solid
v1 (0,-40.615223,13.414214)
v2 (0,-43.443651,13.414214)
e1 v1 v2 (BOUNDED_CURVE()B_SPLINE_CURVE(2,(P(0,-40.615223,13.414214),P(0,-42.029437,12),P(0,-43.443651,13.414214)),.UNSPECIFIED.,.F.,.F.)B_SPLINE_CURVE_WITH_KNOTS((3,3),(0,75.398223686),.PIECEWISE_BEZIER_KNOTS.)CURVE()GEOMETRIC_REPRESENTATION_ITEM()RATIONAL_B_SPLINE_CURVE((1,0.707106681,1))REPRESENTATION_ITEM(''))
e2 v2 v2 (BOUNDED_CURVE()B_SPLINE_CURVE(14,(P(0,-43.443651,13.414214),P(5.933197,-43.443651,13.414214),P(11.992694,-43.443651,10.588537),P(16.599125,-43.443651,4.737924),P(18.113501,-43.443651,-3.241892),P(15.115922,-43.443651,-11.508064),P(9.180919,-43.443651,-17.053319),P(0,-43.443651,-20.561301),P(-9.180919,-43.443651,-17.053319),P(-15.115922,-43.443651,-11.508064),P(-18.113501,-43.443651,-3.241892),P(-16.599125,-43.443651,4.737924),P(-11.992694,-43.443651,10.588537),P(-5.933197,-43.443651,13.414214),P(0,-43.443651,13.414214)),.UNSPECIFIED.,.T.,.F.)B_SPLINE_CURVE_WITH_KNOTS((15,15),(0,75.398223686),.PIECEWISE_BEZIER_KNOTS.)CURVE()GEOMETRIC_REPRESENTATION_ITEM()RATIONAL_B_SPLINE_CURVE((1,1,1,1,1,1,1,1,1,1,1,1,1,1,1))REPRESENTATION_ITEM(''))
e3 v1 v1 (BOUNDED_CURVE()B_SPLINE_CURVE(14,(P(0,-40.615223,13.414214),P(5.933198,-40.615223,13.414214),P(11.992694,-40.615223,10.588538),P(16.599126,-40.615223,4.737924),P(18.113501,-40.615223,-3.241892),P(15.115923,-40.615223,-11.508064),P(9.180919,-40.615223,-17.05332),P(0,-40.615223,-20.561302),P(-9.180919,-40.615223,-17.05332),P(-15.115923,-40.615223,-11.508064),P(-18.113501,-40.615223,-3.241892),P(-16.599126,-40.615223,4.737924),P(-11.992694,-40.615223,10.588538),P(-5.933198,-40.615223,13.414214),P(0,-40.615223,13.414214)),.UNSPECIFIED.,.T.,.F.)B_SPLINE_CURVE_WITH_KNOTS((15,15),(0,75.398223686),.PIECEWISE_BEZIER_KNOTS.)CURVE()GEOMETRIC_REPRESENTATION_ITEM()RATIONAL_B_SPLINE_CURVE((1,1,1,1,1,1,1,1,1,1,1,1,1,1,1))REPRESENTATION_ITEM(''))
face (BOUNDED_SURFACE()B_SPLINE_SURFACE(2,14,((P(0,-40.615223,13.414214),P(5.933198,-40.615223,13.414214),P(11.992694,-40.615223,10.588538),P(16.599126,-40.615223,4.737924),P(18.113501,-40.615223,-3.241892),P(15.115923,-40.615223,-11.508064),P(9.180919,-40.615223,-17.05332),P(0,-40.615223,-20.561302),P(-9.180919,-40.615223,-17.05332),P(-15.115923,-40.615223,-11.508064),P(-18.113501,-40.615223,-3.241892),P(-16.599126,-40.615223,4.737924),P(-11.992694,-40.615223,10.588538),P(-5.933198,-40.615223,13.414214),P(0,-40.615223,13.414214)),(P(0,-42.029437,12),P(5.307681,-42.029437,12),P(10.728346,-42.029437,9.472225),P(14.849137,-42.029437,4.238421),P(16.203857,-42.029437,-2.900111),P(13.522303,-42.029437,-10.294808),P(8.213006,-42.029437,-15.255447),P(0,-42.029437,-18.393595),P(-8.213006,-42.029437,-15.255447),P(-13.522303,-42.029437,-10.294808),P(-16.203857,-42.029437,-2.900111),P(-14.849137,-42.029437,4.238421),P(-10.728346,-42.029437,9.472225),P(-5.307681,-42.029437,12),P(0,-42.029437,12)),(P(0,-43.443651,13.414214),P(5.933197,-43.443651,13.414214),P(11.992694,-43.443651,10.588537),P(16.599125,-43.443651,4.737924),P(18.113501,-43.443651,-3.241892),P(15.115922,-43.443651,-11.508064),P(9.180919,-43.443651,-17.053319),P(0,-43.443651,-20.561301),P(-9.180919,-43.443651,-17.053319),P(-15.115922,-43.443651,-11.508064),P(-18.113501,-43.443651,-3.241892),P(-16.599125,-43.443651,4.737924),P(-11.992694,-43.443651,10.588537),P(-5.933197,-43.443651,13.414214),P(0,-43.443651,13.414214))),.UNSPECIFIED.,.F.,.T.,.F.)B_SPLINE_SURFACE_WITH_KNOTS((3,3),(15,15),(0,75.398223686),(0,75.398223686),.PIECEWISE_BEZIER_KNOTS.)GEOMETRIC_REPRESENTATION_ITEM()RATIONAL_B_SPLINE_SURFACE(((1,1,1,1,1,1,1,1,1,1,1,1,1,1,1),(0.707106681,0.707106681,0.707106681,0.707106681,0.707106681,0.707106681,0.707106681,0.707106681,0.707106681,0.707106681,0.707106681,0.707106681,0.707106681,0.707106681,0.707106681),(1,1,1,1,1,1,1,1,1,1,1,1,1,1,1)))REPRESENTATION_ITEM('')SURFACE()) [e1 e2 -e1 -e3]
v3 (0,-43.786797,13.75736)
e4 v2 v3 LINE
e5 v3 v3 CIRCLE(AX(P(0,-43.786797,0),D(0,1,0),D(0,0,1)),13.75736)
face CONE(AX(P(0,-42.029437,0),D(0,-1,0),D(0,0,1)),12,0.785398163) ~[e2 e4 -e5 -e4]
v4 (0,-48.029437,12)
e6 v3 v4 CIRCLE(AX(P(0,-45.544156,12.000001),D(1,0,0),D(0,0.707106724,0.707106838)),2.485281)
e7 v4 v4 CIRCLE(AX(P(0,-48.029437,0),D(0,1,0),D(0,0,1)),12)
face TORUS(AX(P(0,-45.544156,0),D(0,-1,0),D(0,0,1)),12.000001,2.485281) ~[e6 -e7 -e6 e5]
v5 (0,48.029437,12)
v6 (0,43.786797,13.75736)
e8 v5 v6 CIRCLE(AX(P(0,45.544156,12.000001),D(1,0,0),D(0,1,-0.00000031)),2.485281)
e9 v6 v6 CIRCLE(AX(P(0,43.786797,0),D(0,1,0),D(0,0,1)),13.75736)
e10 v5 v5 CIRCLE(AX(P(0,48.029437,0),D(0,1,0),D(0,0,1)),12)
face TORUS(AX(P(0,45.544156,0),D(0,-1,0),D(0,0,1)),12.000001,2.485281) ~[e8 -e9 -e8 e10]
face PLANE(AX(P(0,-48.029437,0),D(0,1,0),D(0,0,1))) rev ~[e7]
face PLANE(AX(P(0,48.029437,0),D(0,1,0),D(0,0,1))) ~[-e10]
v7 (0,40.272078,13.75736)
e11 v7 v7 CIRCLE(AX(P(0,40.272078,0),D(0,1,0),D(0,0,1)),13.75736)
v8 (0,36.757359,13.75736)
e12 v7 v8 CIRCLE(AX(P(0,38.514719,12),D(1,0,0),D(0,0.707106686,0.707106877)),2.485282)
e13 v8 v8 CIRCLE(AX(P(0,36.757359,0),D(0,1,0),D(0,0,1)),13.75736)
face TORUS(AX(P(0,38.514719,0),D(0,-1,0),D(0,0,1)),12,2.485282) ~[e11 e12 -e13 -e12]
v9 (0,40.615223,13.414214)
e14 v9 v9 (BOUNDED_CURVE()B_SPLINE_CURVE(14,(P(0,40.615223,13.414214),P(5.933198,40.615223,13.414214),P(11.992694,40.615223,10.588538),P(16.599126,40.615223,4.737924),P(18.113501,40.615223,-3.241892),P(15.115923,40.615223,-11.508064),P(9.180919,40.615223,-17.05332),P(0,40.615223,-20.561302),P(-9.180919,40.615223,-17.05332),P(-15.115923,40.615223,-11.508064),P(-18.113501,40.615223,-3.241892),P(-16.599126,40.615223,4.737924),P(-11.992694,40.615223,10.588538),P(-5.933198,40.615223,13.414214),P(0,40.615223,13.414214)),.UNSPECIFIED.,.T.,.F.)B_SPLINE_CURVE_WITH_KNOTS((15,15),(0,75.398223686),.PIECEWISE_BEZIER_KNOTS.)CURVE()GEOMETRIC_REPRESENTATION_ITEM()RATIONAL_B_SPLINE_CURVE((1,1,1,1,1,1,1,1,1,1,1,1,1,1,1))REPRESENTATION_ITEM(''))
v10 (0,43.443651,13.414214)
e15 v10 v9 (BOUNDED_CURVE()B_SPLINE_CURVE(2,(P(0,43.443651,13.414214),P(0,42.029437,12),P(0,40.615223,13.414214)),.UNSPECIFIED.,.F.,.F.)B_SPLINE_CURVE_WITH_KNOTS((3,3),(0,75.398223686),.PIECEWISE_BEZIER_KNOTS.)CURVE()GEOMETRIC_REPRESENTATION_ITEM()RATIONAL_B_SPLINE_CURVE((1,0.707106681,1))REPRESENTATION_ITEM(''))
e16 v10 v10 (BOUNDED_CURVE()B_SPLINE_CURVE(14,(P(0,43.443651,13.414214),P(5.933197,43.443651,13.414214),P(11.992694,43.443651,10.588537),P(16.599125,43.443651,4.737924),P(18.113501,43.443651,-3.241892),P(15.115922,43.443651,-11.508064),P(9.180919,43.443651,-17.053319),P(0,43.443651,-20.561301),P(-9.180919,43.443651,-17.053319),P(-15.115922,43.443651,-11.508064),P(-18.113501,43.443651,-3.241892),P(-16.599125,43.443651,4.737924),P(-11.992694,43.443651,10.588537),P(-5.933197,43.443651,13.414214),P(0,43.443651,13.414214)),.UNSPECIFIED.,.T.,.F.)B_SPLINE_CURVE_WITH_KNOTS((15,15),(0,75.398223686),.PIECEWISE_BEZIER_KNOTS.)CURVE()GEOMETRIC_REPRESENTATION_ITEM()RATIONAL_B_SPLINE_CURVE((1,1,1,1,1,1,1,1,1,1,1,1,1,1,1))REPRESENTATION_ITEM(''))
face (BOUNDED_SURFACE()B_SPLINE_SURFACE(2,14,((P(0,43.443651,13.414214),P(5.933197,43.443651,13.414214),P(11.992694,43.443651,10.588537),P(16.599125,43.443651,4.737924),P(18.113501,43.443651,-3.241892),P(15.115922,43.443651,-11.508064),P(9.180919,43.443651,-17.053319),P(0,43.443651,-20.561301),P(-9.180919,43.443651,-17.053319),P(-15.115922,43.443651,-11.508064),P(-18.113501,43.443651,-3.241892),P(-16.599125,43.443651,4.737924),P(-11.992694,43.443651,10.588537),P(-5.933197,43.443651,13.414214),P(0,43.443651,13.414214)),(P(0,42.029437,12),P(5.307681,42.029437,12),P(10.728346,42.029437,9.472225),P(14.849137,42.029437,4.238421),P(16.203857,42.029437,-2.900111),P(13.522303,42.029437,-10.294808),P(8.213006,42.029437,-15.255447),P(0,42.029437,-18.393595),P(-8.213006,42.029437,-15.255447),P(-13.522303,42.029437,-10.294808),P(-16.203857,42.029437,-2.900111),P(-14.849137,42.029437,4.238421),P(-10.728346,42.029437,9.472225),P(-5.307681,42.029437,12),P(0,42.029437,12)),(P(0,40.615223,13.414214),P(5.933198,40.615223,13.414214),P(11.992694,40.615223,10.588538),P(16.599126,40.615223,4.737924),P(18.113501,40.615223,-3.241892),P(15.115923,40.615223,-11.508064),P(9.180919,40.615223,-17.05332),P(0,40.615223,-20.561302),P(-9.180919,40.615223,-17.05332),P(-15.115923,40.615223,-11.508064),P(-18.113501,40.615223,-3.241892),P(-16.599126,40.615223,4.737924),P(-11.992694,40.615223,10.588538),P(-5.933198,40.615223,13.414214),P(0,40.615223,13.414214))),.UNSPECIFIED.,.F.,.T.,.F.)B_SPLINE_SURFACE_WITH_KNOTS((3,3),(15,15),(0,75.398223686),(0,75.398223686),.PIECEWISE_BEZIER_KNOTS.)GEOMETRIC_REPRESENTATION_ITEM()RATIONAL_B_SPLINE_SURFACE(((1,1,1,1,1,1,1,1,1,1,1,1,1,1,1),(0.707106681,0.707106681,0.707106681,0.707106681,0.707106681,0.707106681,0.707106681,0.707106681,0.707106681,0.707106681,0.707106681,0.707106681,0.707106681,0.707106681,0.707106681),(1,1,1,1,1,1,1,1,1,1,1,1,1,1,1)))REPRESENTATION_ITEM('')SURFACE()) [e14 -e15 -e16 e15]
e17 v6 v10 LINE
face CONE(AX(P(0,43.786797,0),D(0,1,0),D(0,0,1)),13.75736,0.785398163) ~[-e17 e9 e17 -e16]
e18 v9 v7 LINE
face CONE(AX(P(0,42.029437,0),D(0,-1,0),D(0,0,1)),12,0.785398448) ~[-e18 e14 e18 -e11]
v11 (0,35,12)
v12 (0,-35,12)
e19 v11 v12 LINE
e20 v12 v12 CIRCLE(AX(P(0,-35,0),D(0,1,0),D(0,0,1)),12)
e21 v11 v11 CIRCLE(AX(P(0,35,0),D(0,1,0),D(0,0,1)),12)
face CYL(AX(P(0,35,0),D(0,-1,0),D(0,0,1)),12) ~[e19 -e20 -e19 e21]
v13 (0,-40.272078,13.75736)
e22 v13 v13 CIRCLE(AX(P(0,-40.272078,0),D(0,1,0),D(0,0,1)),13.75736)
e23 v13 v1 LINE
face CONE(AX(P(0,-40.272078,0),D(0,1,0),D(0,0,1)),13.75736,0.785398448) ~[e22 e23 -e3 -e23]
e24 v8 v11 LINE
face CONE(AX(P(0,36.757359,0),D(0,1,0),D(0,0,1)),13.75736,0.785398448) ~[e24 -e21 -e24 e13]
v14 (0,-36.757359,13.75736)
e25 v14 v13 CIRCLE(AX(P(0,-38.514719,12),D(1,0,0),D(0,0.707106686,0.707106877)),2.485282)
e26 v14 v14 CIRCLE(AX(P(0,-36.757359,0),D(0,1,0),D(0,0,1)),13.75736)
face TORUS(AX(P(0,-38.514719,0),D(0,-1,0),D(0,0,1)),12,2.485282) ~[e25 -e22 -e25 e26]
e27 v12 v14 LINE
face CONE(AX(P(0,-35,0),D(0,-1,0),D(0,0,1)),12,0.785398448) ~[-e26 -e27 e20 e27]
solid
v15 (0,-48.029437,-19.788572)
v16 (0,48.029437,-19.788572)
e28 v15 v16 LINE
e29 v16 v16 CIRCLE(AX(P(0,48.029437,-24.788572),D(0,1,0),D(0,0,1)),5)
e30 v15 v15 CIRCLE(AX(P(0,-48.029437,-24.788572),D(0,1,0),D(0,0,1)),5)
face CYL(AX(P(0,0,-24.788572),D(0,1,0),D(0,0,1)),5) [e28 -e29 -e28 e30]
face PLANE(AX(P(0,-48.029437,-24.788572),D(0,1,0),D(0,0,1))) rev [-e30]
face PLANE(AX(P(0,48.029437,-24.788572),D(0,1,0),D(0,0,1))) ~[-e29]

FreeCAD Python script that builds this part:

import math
import FreeCAD as App
import Part
import Sketcher
from FreeCAD import Vector
Q = App.Units.Quantity


def edges_at(feature, points):
    """Names of the edges that pass closest to the given points."""
    edges = feature.Shape.Edges
    near = lambda p: min(range(len(edges)), key=lambda i: edges[i].distToShape(Part.Vertex(*p))[0])
    return sorted({f"Edge{near(p) + 1}" for p in points})


def add_polygon(sketch, points):
    """Adds a closed chain of lines whose ends are joined by coincident constraints."""
    first, n = sketch.GeometryCount, len(points)
    for a, b in zip(points, points[1:] + points[:1]):
        sketch.addGeometry(Part.LineSegment(App.Vector(*a, 0), App.Vector(*b, 0)), False)
    for i in range(n):
        sketch.addConstraint(Sketcher.Constraint("Coincident", first + i, 2, first + (i + 1) % n, 1))

doc = App.newDocument("Part")
body = doc.addObject("PartDesign::Body", "Body")

# Sketch on YZ plane
sketch1 = body.newObject("Sketcher::SketchObject", "Sketch")
sketch1.AttachmentSupport = (doc.getObject("YZ_Plane"), [""])
sketch1.MapMode = "FlatFace"
sketch1.addGeometry([
    Part.LineSegment(Vector(-48, 12, 0), Vector(-48, 0, 0)),  # 0
    Part.LineSegment(Vector(-48, 0, 0), Vector(48, 0, 0)),  # 1
    Part.LineSegment(Vector(48, 0, 0), Vector(48, 12, 0)),  # 2
    Part.ArcOfCircle(Part.Circle(Vector(45.5, 12, 0), Vector(0, 0, 1), 2.5), math.radians(0), math.radians(135)),  # 3
    Part.LineSegment(Vector(43.8, 13.8, 0), Vector(42, 12, 0)),  # 4
    Part.LineSegment(Vector(42, 12, 0), Vector(40.3, 13.8, 0)),  # 5
    Part.ArcOfCircle(Part.Circle(Vector(38.5, 12, 0), Vector(0, 0, 1), 2.5), math.radians(45), math.radians(135)),  # 6
    Part.LineSegment(Vector(36.8, 13.8, 0), Vector(35, 12, 0)),  # 7
    Part.LineSegment(Vector(35, 12, 0), Vector(-35, 12, 0)),  # 8
    Part.LineSegment(Vector(-35, 12, 0), Vector(-36.8, 13.8, 0)),  # 9
    Part.ArcOfCircle(Part.Circle(Vector(-38.5, 12, 0), Vector(0, 0, 1), 2.5), math.radians(45), math.radians(135)),  # 10
    Part.LineSegment(Vector(-40.3, 13.8, 0), Vector(-42, 12, 0)),  # 11
    Part.LineSegment(Vector(-42, 12, 0), Vector(-43.8, 13.8, 0)),  # 12
    Part.ArcOfCircle(Part.Circle(Vector(-45.5, 12, 0), Vector(0, 0, 1), 2.5), math.radians(45), math.radians(180)),  # 13
], False)
sketch1.addConstraint([
    Sketcher.Constraint("Coincident", 0, 2, 1, 1),
    Sketcher.Constraint("Coincident", 1, 2, 2, 1),
    Sketcher.Constraint("Tangent", 2, 2, 3, 1),
    Sketcher.Constraint("Tangent", 3, 2, 4, 1),
    Sketcher.Constraint("Coincident", 4, 2, 5, 1),
    Sketcher.Constraint("Tangent", 5, 2, 6, 1),
    Sketcher.Constraint("Tangent", 6, 2, 7, 1),
    Sketcher.Constraint("Coincident", 7, 2, 8, 1),
    Sketcher.Constraint("Coincident", 8, 2, 9, 1),
    Sketcher.Constraint("Tangent", 9, 2, 10, 1),
    Sketcher.Constraint("Tangent", 10, 2, 11, 1),
    Sketcher.Constraint("Coincident", 11, 2, 12, 1),
    Sketcher.Constraint("Tangent", 12, 2, 13, 1),
    Sketcher.Constraint("Tangent", 13, 2, 0, 1),
    Sketcher.Constraint("Vertical", 0),
    Sketcher.Constraint("Horizontal", 1),
    Sketcher.Constraint("Vertical", 2),
    Sketcher.Constraint("Horizontal", 8),
    Sketcher.Constraint("Equal", 3, 6),
    Sketcher.Constraint("Equal", 6, 10),
    Sketcher.Constraint("Equal", 10, 13),
    Sketcher.Constraint("Symmetric", 0, 2, 1, 2, -1, 1),
    Sketcher.Constraint("Symmetric", 6, 3, 10, 3, -2),
    Sketcher.Constraint("Symmetric", 4, 2, 11, 2, -2),
    Sketcher.Constraint("Perpendicular", 4, 5),
    Sketcher.Constraint("Perpendicular", 5, 7),
    Sketcher.Constraint("Perpendicular", 7, 9),
    Sketcher.Constraint("Perpendicular", 9, 11),
    Sketcher.Constraint("Perpendicular", 11, 12),
    Sketcher.Constraint("Horizontal", 3, 3, 6, 3),
    Sketcher.Constraint("Horizontal", 2, 2, 4, 2),
    Sketcher.Constraint("Horizontal", 4, 2, 7, 2),
    Sketcher.Constraint("DistanceX", 8, 2, 8, 1, Q("70 mm")),
    Sketcher.Constraint("DistanceY", 0, 2, 0, 1, Q("12 mm")),
    Sketcher.Constraint("DistanceX", 4, 2, 2, 2, Q("6 mm")),
])
revolution = body.newObject("PartDesign::Revolution", "Revolution")
revolution.Profile = sketch1
revolution.ReferenceAxis = (sketch1, ["H_Axis"])
revolution.Angle = 360
doc.recompute()

fillet = body.newObject("PartDesign::Fillet", "Fillet")
fillet.Base = (revolution, edges_at(revolution, [(0, -42.029, -12), (0, 42.029, -12)]))
fillet.Radius = 2
body2 = doc.addObject("PartDesign::Body", "Body001")

# Sketch on YZ plane
sketch2 = body2.newObject("Sketcher::SketchObject", "Sketch001")
sketch2.AttachmentSupport = (doc.getObject("YZ_Plane001"), [""])
sketch2.MapMode = "FlatFace"
add_polygon(sketch2, [(-48, -20), (-48, -25), (48, -25), (48, -20)])  # lines 0-3
sketch2.addGeometry(Part.LineSegment(Vector(-48, -25, 0), Vector(48, -25, 0)), True)  # axis
sketch2.addConstraint([
    Sketcher.Constraint("Vertical", 0),
    Sketcher.Constraint("Horizontal", 1),
    Sketcher.Constraint("Vertical", 2),
    Sketcher.Constraint("Horizontal", 3),
    Sketcher.Constraint("Horizontal", 4),
    Sketcher.Constraint("Coincident", 4, 1, 0, 2),
    Sketcher.Constraint("Vertical", 2, 2, 4, 2),
    Sketcher.Constraint("DistanceY", 0, 2, 0, 1, Q("5 mm")),
    Sketcher.Constraint("DistanceX", 1, 1, 1, 2, Q("96.058874 mm")),
    Sketcher.Constraint("DistanceY", 0, 2, -1, 1, Q("24.788572 mm")),
    Sketcher.Constraint("DistanceX", 0, 2, -1, 1, Q("48.029437 mm")),
])
revolution2 = body2.newObject("PartDesign::Revolution", "Revolution001")
revolution2.Profile = sketch2
revolution2.ReferenceAxis = (sketch2, ["Axis0"])
revolution2.Angle = 360

doc.recompute()
